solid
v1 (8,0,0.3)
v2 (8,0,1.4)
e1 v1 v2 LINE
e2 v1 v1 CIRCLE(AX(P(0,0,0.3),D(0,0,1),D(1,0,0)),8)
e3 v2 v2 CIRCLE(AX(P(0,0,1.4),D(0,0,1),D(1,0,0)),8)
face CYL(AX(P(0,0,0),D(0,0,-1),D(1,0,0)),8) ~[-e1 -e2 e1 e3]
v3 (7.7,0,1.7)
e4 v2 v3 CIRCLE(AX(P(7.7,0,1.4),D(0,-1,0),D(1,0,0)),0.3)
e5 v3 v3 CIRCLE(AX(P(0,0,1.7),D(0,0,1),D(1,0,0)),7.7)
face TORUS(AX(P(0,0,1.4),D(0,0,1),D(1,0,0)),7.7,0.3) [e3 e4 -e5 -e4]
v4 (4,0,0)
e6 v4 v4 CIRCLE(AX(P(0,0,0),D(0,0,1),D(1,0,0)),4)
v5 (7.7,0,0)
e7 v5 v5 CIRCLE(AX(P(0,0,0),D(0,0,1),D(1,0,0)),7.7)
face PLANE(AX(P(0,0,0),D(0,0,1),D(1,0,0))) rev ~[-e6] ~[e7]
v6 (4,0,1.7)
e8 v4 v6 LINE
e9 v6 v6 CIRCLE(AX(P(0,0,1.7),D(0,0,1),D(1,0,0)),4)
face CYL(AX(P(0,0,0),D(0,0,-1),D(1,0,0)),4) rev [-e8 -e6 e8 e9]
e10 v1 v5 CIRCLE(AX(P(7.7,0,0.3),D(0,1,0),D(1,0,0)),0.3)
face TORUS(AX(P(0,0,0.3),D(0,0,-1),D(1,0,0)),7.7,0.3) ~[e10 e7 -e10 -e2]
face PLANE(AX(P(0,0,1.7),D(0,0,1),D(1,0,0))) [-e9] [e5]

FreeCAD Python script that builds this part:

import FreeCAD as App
import Part
import Sketcher


def edges_at(feature, points):
    """Names of the edges that pass closest to the given points."""
    edges = feature.Shape.Edges
    near = lambda p: min(range(len(edges)), key=lambda i: edges[i].distToShape(Part.Vertex(*p))[0])
    return sorted({f"Edge{near(p) + 1}" for p in points})

doc = App.newDocument("Part")
body = doc.addObject("PartDesign::Body", "Body")

sketch1 = body.newObject("Sketcher::SketchObject", "Sketch")
sketch1.AttachmentSupport = (doc.getObject("XY_Plane"), [""])
sketch1.MapMode = "FlatFace"
sketch1.addGeometry(Part.Circle(App.Vector(0, 0, 0), App.Vector(0, 0, 1), 4), False)
sketch1.addConstraint(Sketcher.Constraint("Coincident", 0, 3, -1, 1))
sketch1.addConstraint(Sketcher.Constraint("Diameter", 0, 8.0))
pad1 = body.newObject("PartDesign::Pad", "Pad")
pad1.Profile = sketch1
pad1.Length = 1.7
body2 = doc.addObject("PartDesign::Body", "Body001")

sketch2 = body2.newObject("Sketcher::SketchObject", "Sketch001")
sketch2.AttachmentSupport = (doc.getObject("XY_Plane001"), [""])
sketch2.MapMode = "FlatFace"
sketch2.addGeometry(Part.Circle(App.Vector(0, 0, 0), App.Vector(0, 0, 1), 8), False)
sketch2.addConstraint(Sketcher.Constraint("Coincident", 0, 3, -1, 1))
sketch2.addConstraint(Sketcher.Constraint("Diameter", 0, 16.0))
pad2 = body2.newObject("PartDesign::Pad", "Pad001")
pad2.Profile = sketch2
pad2.Length = 1.7
doc.recompute()

boolean = body2.newObject("PartDesign::Boolean", "Boolean")
boolean.Type = "Cut"
boolean.addObjects([body])
doc.recompute()

fillet = body2.newObject("PartDesign::Fillet", "Fillet")
fillet.Base = (boolean, edges_at(boolean, [(-8, 0, 1.7), (-8, 0, 0)]))
fillet.Radius = 0.3

doc.recompute()
